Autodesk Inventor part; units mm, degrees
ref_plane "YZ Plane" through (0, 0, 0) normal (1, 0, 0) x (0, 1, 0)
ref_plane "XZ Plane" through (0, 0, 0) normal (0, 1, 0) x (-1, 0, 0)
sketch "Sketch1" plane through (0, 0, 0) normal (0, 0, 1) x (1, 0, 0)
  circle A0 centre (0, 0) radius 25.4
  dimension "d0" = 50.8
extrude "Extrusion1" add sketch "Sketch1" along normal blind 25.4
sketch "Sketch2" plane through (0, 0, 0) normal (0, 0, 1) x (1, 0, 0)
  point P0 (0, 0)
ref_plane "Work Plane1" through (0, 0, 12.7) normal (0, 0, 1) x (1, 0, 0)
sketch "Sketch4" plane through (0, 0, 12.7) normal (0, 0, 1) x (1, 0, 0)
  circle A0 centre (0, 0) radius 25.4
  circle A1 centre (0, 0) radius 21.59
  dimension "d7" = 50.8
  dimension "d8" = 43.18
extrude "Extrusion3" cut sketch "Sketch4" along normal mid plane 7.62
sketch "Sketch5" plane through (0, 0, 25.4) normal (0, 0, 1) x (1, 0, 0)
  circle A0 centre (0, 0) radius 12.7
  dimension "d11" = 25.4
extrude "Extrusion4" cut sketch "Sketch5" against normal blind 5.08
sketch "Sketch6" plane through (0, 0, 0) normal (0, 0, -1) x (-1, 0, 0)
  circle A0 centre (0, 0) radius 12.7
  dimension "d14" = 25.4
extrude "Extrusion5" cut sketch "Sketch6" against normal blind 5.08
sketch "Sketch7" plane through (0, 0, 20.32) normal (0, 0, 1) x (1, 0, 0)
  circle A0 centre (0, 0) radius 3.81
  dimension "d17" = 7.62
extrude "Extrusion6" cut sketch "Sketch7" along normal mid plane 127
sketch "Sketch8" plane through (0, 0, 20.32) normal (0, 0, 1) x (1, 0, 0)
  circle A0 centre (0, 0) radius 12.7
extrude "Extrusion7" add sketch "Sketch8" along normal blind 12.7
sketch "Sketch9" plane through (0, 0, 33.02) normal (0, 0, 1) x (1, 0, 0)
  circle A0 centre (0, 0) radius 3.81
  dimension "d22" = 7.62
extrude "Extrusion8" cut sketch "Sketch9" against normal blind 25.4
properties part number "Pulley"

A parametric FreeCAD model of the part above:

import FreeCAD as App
import Part
import Sketcher

V = App.Vector
Q = App.Units.Quantity

doc = App.newDocument("Part")
body = doc.addObject("PartDesign::Body", "Body")

# Sketch on XY plane
sketch1 = doc.addObject("Sketcher::SketchObject", "Sketch")
body.addObject(sketch1)
sketch1.AttachmentSupport = (doc.XY_Plane, [""])
sketch1.MapMode = "FlatFace"
sketch1.addGeometry(Part.Circle(V(0, 0, 0), V(0, 0, 1), 25.4), False)
sketch1.addConstraint([
    Sketcher.Constraint("Coincident", 0, 3, -1, 1),
    Sketcher.Constraint("Diameter", 0, Q("2 in")),
])
pad1 = doc.addObject("PartDesign::Pad", "Pad")
body.addObject(pad1)
pad1.Profile = sketch1
pad1.Length = Q("1 in")

# Sketch on XY plane
sketch2 = doc.addObject("Sketcher::SketchObject", "Sketch001")
body.addObject(sketch2)
sketch2.AttachmentSupport = (doc.XY_Plane, [""])
sketch2.MapMode = "FlatFace"
sketch2.AttachmentOffset = App.Placement(V(0, 0, 0.5 * 25.4), App.Rotation())
sketch2.addGeometry([
    Part.Circle(V(0, 0, 0), V(0, 0, 1), 25.4),
    Part.Circle(V(0, 0, 0), V(0, 0, 1), 21.59),
], False)
sketch2.addConstraint([
    Sketcher.Constraint("Coincident", 0, 3, -1, 1),
    Sketcher.Constraint("Coincident", 1, 3, -1, 1),
    Sketcher.Constraint("Diameter", 0, Q("2 in")),
    Sketcher.Constraint("Diameter", 1, Q("1.7 in")),
])
pocket1 = doc.addObject("PartDesign::Pocket", "Pocket")
body.addObject(pocket1)
pocket1.Profile = sketch2
pocket1.Length = Q("0.3 in")
pocket1.Midplane = True

# Sketch on XY plane
sketch3 = doc.addObject("Sketcher::SketchObject", "Sketch002")
body.addObject(sketch3)
sketch3.AttachmentSupport = (doc.XY_Plane, [""])
sketch3.MapMode = "FlatFace"
sketch3.AttachmentOffset = App.Placement(V(0, 0, 1 * 25.4), App.Rotation())
sketch3.addGeometry(Part.Circle(V(0, 0, 0), V(0, 0, 1), 12.7), False)
sketch3.addConstraint([
    Sketcher.Constraint("Coincident", 0, 3, -1, 1),
    Sketcher.Constraint("Diameter", 0, Q("1 in")),
])
pocket2 = doc.addObject("PartDesign::Pocket", "Pocket001")
body.addObject(pocket2)
pocket2.Profile = sketch3
pocket2.Length = Q("0.2 in")

# Sketch on XY plane
sketch4 = doc.addObject("Sketcher::SketchObject", "Sketch003")
body.addObject(sketch4)
sketch4.AttachmentSupport = (doc.XY_Plane, [""])
sketch4.MapMode = "FlatFace"
sketch4.addGeometry(Part.Circle(V(0, 0, 0), V(0, 0, 1), 12.7), False)
sketch4.addConstraint([
    Sketcher.Constraint("Coincident", 0, 3, -1, 1),
    Sketcher.Constraint("Diameter", 0, Q("1 in")),
])
pocket3 = doc.addObject("PartDesign::Pocket", "Pocket002")
body.addObject(pocket3)
pocket3.Profile = sketch4
pocket3.Length = Q("0.2 in")
pocket3.Reversed = True

# Sketch on XY plane
sketch5 = doc.addObject("Sketcher::SketchObject", "Sketch004")
body.addObject(sketch5)
sketch5.AttachmentSupport = (doc.XY_Plane, [""])
sketch5.MapMode = "FlatFace"
sketch5.AttachmentOffset = App.Placement(V(0, 0, 0.8 * 25.4), App.Rotation())
sketch5.addGeometry(Part.Circle(V(0, 0, 0), V(0, 0, 1), 3.81), False)
sketch5.addConstraint([
    Sketcher.Constraint("Coincident", 0, 3, -1, 1),
    Sketcher.Constraint("Diameter", 0, Q("0.3 in")),
])
pocket4 = doc.addObject("PartDesign::Pocket", "Pocket003")
body.addObject(pocket4)
pocket4.Profile = sketch5
pocket4.Length = Q("5 in")
pocket4.Midplane = True

# Sketch on XY plane
sketch6 = doc.addObject("Sketcher::SketchObject", "Sketch005")
body.addObject(sketch6)
sketch6.AttachmentSupport = (doc.XY_Plane, [""])
sketch6.MapMode = "FlatFace"
sketch6.AttachmentOffset = App.Placement(V(0, 0, 0.8 * 25.4), App.Rotation())
sketch6.addGeometry(Part.Circle(V(0, 0, 0), V(0, 0, 1), 12.7), False)
sketch6.addConstraint([
    Sketcher.Constraint("Coincident", 0, 3, -1, 1),
    Sketcher.Constraint("Diameter", 0, Q("1 in")),
])
pad2 = doc.addObject("PartDesign::Pad", "Pad001")
body.addObject(pad2)
pad2.Profile = sketch6
pad2.Length = Q("0.5 in")

# Sketch on XY plane
sketch7 = doc.addObject("Sketcher::SketchObject", "Sketch006")
body.addObject(sketch7)
sketch7.AttachmentSupport = (doc.XY_Plane, [""])
sketch7.MapMode = "FlatFace"
sketch7.AttachmentOffset = App.Placement(V(0, 0, 1.3 * 25.4), App.Rotation())
sketch7.addGeometry(Part.Circle(V(0, 0, 0), V(0, 0, 1), 3.81), False)
sketch7.addConstraint([
    Sketcher.Constraint("Coincident", 0, 3, -1, 1),
    Sketcher.Constraint("Diameter", 0, Q("0.3 in")),
])
pocket5 = doc.addObject("PartDesign::Pocket", "Pocket004")
body.addObject(pocket5)
pocket5.Profile = sketch7
pocket5.Length = Q("1 in")

doc.recompute()
